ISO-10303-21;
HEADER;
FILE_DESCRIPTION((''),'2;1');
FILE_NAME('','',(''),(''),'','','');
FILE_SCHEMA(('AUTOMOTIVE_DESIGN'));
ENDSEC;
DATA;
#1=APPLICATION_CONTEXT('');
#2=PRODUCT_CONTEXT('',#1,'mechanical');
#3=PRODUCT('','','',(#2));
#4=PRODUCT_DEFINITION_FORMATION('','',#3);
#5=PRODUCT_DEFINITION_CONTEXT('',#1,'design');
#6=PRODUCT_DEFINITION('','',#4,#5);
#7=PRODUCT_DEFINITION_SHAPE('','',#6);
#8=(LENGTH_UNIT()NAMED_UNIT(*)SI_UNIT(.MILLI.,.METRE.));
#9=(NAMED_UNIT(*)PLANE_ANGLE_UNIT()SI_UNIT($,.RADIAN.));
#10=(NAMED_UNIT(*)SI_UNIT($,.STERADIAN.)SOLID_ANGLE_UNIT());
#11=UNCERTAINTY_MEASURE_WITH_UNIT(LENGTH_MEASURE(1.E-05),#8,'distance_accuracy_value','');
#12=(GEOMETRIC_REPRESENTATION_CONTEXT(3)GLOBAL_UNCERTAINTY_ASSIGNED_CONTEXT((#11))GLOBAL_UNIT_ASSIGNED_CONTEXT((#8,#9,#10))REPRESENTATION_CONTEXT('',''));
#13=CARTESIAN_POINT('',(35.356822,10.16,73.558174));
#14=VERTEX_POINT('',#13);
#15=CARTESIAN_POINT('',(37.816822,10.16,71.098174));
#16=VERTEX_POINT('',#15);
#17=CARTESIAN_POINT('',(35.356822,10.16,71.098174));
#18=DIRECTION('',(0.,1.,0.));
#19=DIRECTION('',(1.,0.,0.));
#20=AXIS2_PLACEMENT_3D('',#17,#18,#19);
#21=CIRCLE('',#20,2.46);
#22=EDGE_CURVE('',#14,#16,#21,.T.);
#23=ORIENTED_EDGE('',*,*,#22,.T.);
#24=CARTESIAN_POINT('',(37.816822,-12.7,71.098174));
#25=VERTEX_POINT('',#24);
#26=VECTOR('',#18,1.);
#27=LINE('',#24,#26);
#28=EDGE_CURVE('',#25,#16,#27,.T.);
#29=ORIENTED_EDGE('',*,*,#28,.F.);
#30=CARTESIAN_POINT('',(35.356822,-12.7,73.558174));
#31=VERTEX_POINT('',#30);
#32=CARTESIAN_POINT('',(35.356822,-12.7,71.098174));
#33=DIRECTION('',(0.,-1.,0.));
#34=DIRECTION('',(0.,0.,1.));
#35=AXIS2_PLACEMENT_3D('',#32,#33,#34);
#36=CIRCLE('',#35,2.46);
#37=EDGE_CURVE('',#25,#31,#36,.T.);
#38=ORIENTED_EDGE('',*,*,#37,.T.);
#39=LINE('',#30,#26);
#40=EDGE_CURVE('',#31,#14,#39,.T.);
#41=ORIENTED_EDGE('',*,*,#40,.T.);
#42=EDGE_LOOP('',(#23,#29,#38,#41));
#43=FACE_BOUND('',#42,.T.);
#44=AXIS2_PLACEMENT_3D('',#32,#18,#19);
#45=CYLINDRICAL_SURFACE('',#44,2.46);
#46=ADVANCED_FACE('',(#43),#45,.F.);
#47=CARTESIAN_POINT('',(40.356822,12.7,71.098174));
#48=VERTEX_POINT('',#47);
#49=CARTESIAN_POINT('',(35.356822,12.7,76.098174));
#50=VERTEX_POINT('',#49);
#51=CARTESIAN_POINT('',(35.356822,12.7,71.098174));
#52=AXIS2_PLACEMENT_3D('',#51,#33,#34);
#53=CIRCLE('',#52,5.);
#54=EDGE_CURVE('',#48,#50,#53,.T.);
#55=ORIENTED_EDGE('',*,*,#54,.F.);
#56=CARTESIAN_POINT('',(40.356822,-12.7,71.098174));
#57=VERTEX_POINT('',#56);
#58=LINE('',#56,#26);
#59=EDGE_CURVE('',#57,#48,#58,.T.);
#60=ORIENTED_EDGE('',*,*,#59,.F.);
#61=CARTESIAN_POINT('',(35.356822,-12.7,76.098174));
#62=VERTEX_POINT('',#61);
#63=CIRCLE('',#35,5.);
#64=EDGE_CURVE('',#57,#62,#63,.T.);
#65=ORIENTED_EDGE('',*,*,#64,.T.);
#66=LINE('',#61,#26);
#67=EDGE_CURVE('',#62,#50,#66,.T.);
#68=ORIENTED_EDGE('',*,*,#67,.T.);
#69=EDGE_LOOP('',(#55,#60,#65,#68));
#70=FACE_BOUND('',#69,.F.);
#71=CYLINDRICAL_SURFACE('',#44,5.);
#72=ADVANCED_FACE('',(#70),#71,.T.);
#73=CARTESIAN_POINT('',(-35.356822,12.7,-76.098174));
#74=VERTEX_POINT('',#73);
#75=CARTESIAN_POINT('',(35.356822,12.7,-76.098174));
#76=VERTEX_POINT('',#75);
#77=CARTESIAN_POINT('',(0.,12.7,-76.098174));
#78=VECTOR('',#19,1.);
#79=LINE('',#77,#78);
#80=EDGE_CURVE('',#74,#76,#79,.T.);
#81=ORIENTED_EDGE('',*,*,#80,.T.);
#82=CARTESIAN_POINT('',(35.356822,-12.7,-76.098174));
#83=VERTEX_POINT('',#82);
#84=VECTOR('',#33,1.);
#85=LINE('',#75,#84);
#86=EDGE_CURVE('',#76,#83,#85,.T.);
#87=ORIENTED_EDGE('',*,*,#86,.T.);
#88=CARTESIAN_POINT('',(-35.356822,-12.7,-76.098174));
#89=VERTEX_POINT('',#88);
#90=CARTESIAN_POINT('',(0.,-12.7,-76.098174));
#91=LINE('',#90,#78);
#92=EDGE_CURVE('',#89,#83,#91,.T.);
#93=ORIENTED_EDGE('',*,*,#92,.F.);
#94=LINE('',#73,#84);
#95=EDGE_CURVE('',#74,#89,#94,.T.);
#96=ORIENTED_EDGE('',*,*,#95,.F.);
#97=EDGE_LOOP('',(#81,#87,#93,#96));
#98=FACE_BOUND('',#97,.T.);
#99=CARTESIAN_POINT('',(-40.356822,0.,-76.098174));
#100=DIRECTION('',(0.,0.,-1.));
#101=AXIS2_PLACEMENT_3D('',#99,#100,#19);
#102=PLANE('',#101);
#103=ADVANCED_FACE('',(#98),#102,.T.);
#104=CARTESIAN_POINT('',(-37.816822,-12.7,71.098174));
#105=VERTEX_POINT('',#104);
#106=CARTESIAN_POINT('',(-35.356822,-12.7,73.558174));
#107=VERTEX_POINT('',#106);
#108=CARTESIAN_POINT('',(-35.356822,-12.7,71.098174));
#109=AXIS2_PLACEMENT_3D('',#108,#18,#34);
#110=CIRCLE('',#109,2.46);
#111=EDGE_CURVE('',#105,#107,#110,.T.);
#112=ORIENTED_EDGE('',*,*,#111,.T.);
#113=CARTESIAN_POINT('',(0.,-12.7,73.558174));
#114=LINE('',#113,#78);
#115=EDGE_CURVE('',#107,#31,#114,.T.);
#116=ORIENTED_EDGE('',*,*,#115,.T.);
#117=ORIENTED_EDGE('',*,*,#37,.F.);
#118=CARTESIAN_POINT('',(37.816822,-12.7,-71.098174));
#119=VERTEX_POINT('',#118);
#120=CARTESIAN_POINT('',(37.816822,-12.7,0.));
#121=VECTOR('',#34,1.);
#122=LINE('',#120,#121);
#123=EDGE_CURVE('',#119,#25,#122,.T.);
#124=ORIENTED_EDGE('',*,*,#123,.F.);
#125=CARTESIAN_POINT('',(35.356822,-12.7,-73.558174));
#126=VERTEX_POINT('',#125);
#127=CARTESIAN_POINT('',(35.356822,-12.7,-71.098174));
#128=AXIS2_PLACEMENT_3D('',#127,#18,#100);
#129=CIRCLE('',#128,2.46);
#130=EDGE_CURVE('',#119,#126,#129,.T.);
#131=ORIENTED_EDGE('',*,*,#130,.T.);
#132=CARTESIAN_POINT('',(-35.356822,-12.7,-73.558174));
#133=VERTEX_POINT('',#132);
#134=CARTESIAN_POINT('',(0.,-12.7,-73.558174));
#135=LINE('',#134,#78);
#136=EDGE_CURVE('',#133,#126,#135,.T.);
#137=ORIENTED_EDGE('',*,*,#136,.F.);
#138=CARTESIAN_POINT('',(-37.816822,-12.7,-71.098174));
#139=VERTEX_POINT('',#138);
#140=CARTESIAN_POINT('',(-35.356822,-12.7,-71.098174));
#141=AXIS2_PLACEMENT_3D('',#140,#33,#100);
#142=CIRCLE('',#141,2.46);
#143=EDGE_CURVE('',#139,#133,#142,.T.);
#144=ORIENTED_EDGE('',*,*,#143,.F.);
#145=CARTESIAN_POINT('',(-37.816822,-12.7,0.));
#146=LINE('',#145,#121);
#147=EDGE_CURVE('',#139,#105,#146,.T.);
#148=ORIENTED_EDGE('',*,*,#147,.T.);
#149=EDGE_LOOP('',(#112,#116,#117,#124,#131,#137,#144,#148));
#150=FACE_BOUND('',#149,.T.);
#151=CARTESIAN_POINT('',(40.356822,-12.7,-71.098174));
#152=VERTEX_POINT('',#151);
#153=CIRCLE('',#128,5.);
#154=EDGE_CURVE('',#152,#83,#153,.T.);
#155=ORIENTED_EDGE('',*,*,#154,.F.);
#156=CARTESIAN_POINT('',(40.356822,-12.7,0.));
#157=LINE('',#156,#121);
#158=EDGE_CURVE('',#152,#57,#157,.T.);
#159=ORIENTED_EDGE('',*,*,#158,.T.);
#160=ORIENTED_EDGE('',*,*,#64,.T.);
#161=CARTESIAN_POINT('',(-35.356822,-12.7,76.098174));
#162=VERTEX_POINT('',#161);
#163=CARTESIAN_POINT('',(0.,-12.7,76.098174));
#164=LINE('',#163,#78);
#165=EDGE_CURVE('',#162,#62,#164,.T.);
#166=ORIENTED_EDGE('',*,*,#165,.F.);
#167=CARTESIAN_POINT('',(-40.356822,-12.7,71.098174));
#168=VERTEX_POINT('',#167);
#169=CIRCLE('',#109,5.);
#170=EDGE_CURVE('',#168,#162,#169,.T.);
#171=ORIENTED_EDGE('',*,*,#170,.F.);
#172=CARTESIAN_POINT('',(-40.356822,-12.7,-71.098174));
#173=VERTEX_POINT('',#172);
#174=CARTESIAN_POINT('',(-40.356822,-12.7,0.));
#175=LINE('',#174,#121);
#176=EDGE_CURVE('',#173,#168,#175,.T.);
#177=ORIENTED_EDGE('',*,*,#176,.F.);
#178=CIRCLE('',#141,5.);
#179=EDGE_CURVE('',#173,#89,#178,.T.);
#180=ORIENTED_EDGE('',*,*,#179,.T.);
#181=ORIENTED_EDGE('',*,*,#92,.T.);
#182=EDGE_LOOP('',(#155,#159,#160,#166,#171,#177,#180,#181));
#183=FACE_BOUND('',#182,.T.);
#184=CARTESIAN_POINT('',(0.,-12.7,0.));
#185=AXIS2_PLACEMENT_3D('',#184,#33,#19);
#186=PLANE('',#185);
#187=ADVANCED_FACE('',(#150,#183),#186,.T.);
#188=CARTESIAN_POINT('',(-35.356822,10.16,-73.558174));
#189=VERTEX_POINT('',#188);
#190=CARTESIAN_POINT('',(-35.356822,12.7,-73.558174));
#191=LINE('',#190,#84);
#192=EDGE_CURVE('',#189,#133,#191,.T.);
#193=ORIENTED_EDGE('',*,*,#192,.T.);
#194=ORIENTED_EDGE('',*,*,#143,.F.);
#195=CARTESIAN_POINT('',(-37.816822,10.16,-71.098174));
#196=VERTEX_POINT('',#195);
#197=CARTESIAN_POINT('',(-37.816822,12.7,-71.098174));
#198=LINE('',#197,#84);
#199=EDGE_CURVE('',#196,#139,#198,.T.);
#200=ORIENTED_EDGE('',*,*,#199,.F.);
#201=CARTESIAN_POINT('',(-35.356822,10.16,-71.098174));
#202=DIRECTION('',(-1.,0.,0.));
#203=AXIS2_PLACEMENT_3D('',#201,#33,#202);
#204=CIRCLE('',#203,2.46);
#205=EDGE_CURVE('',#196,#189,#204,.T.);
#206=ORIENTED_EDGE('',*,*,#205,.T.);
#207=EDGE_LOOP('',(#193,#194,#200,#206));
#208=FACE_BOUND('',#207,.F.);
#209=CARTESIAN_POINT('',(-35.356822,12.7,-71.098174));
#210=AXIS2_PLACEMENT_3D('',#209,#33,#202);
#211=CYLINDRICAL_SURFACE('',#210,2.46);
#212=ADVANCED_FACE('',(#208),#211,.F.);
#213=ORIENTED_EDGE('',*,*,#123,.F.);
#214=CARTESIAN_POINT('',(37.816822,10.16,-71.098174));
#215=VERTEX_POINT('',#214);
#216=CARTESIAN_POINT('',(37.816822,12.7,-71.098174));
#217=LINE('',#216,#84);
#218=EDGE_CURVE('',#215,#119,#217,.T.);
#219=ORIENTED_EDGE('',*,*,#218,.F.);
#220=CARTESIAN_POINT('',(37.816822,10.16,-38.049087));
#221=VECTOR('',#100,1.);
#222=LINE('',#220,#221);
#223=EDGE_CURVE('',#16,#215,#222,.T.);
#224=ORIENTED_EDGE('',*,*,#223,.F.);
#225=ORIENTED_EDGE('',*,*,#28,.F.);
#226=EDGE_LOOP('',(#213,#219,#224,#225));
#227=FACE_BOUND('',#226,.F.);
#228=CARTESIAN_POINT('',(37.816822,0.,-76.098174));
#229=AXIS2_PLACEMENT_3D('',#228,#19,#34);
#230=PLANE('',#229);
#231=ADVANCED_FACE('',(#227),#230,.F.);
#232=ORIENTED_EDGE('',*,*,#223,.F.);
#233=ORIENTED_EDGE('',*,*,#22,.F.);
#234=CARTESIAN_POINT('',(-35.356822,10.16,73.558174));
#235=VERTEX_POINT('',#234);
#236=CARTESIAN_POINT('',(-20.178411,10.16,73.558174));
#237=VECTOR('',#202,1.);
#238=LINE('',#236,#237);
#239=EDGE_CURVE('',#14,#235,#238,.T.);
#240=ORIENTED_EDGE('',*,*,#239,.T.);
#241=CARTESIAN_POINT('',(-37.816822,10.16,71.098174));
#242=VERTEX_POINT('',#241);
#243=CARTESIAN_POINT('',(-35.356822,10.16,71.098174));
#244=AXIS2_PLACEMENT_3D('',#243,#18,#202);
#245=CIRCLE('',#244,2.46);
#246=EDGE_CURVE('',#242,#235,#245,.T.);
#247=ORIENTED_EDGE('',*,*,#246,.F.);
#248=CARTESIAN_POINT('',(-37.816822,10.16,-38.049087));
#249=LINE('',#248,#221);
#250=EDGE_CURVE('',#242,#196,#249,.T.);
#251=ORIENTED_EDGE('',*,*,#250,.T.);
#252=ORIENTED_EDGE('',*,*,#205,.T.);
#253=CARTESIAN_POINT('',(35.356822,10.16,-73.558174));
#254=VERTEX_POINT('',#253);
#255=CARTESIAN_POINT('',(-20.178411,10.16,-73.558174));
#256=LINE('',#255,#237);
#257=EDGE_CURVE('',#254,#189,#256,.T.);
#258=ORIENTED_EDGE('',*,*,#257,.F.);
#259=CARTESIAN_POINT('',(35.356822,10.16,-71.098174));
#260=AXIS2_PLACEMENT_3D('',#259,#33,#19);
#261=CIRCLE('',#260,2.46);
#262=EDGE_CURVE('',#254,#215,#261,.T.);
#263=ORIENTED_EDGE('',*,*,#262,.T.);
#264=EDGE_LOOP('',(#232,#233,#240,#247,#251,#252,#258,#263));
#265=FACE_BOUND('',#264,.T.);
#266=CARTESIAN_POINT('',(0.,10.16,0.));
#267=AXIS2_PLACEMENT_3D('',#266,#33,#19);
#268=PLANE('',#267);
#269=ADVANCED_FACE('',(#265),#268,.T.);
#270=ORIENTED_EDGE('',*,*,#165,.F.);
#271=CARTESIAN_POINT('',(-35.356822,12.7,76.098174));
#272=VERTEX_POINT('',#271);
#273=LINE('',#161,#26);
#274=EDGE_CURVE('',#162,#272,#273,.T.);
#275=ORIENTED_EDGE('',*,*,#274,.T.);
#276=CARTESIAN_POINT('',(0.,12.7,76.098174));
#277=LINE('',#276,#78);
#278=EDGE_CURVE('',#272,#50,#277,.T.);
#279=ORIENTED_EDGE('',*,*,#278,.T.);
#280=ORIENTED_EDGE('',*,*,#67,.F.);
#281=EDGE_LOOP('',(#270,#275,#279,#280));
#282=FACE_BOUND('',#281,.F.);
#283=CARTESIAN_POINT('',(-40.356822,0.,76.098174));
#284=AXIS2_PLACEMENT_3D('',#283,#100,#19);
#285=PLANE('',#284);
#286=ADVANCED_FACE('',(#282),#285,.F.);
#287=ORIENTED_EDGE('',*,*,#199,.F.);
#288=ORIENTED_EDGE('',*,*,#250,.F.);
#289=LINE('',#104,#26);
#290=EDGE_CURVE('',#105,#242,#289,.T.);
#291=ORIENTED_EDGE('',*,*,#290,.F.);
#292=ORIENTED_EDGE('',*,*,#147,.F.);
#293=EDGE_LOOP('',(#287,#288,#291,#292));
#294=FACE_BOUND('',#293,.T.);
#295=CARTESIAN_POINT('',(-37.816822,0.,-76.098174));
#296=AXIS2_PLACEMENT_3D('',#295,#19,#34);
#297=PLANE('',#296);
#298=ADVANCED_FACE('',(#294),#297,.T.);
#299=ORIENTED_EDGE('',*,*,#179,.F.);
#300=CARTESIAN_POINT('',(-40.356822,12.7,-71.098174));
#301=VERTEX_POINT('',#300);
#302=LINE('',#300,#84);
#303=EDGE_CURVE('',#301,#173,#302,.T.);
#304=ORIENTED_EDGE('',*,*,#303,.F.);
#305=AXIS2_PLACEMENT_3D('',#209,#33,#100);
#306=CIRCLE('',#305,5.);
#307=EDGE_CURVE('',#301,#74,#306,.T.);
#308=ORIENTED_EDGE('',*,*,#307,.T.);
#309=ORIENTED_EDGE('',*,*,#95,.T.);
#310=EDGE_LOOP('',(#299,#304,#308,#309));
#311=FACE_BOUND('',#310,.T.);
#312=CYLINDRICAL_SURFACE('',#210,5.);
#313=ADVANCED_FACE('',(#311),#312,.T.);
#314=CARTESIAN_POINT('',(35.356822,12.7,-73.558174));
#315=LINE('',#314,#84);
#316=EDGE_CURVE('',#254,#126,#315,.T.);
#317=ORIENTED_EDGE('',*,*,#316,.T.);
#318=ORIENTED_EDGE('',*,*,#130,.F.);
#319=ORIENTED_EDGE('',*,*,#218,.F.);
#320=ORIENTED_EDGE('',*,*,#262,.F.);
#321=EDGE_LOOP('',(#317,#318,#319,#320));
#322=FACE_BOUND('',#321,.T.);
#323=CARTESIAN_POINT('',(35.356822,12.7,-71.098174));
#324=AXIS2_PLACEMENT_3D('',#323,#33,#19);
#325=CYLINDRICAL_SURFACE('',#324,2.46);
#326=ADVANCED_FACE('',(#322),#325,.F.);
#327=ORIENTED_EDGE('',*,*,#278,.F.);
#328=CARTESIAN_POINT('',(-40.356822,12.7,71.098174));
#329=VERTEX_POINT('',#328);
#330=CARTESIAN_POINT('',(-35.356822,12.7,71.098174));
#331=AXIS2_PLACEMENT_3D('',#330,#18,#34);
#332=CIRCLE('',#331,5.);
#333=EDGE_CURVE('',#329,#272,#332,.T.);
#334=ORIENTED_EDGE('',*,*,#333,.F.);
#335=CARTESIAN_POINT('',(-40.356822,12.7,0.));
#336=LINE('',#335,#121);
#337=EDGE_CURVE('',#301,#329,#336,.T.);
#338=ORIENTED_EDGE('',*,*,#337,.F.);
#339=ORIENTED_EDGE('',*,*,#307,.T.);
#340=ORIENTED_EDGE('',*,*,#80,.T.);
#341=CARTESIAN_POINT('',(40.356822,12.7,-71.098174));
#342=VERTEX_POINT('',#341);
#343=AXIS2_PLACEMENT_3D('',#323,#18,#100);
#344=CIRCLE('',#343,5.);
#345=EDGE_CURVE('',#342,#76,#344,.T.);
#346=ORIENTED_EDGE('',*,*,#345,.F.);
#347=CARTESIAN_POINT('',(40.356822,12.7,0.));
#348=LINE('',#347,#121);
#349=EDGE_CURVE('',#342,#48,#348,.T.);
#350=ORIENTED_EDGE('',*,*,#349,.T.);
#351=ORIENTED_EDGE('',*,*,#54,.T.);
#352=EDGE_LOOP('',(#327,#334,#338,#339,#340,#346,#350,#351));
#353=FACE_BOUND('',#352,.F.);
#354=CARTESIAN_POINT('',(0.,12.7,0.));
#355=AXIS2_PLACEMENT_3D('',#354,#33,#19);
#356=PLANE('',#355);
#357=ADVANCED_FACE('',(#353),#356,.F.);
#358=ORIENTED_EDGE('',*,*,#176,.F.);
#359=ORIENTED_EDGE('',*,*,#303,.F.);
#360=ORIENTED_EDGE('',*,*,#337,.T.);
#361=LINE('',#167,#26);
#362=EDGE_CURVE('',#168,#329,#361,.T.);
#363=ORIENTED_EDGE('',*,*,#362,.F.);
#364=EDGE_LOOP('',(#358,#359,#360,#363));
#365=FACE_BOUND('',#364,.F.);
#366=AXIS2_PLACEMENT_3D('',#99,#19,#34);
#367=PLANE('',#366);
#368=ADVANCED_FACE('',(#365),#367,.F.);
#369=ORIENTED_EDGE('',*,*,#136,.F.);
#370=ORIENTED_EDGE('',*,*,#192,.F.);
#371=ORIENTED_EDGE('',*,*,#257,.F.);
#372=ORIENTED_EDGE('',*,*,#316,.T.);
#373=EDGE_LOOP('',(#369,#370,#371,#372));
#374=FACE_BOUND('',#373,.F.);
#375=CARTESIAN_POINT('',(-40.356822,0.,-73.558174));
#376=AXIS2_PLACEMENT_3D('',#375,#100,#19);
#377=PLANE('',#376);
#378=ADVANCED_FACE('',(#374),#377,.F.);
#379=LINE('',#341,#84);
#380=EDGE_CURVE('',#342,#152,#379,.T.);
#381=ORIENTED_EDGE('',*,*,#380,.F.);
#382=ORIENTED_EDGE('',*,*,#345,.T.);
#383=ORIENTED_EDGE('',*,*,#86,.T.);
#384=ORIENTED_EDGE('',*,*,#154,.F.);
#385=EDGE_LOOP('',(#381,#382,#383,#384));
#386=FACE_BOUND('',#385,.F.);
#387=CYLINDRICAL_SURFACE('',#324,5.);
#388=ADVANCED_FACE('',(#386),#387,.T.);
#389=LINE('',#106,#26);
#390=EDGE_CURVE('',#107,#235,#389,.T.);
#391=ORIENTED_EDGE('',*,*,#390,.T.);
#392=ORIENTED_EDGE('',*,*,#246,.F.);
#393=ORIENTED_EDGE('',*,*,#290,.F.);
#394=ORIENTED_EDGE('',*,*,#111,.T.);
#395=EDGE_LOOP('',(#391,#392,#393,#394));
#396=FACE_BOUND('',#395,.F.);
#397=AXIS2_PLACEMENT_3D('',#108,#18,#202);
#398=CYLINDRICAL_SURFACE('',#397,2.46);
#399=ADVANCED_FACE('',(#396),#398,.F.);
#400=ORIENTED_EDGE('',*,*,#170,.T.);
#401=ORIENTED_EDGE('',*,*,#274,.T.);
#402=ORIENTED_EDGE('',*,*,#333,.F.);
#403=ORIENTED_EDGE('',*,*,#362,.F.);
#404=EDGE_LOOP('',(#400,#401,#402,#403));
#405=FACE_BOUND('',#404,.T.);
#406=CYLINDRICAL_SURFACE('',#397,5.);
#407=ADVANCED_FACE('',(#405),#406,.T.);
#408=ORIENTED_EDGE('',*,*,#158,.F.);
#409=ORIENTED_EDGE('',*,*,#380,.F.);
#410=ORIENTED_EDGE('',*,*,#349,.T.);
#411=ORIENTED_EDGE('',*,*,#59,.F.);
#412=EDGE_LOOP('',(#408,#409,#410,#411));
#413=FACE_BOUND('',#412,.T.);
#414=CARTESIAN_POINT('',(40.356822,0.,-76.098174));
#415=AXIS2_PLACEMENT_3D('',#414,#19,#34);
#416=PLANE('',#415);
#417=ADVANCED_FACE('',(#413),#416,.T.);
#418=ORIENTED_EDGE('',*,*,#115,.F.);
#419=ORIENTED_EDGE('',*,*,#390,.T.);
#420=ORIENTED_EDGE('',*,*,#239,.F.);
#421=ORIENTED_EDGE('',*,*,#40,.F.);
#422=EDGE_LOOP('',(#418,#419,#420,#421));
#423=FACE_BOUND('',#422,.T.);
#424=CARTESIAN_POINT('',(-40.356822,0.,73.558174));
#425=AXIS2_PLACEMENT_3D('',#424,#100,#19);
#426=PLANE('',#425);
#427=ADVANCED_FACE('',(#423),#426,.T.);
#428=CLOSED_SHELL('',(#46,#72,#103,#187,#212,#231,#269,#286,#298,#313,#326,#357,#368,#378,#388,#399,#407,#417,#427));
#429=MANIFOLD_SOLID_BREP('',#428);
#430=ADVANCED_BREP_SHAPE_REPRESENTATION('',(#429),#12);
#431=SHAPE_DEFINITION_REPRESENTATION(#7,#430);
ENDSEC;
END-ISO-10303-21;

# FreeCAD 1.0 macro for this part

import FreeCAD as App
import Part
import Sketcher
from FreeCAD import Vector
Q = App.Units.Quantity


def edges_at(feature, points):
    """Names of the edges that pass closest to the given points."""
    edges = feature.Shape.Edges
    near = lambda p: min(range(len(edges)), key=lambda i: edges[i].distToShape(Part.Vertex(*p))[0])
    return sorted({f"Edge{near(p) + 1}" for p in points})


def faces_at(feature, points):
    """Names of the faces that lie closest to the given points."""
    faces = feature.Shape.Faces
    near = lambda p: min(range(len(faces)), key=lambda i: faces[i].distToShape(Part.Vertex(*p))[0])
    return sorted({f"Face{near(p) + 1}" for p in points})


def add_polygon(sketch, points):
    """Adds a closed chain of lines whose ends are joined by coincident constraints."""
    first, n = sketch.GeometryCount, len(points)
    for a, b in zip(points, points[1:] + points[:1]):
        sketch.addGeometry(Part.LineSegment(App.Vector(*a, 0), App.Vector(*b, 0)), False)
    for i in range(n):
        sketch.addConstraint(Sketcher.Constraint("Coincident", first + i, 2, first + (i + 1) % n, 1))

doc = App.newDocument("Part")
params = doc.addObject("Spreadsheet::Sheet", "Params")
for row, (alias, value) in enumerate([
    ("pad1_length", "1 in"),
    ("fillet_radius", "5 mm"),
    ("thickness_wall", "0.1 in"),
], start=1):
    params.set(f"A{row}", alias)
    params.set(f"B{row}", "=" + value)
    params.setAlias(f"B{row}", alias)

body = doc.addObject("PartDesign::Body", "Body")

# Sketch on XZ plane
sketch1 = body.newObject("Sketcher::SketchObject", "Sketch")
sketch1.AttachmentSupport = (doc.getObject("XZ_Plane"), [""])
sketch1.MapMode = "FlatFace"
add_polygon(sketch1, [(-40, 76), (-40, -76), (40, -76), (40, 76)])  # lines 0-3
sketch1.addConstraint(Sketcher.Constraint("Vertical", 0))
sketch1.addConstraint(Sketcher.Constraint("Horizontal", 1))
sketch1.addConstraint(Sketcher.Constraint("Vertical", 2))
sketch1.addConstraint(Sketcher.Constraint("Horizontal", 3))
sketch1.addConstraint(Sketcher.Constraint("Symmetric", 0, 2, 2, 2, -1, 1))
sketch1.addConstraint(Sketcher.Constraint("DistanceY", 0, 2, 0, 1, Q("152.196348 mm")))
sketch1.addConstraint(Sketcher.Constraint("DistanceX", 1, 1, 1, 2, Q("80.713644 mm")))
pad1 = body.newObject("PartDesign::Pad", "Pad")
pad1.Profile = sketch1
pad1.setExpression("Length", "Params.pad1_length")
pad1.Midplane = True
doc.recompute()

fillet = body.newObject("PartDesign::Fillet", "Fillet")
fillet.Base = (pad1, edges_at(pad1, [
    (-40.357, 0, 76.098),
    (40.357, 0, 76.098),
    (40.357, 0, -76.098),
    (-40.357, 0, -76.098),
]))
fillet.setExpression("Radius", "Params.fillet_radius")
doc.recompute()

thickness = body.newObject("PartDesign::Thickness", "Thickness")
thickness.Base = (fillet, faces_at(fillet, [(0, -12.7, 0)]))
thickness.setExpression("Value", "Params.thickness_wall")
thickness.Reversed = True
thickness.Join = "Arc"

doc.recompute()
